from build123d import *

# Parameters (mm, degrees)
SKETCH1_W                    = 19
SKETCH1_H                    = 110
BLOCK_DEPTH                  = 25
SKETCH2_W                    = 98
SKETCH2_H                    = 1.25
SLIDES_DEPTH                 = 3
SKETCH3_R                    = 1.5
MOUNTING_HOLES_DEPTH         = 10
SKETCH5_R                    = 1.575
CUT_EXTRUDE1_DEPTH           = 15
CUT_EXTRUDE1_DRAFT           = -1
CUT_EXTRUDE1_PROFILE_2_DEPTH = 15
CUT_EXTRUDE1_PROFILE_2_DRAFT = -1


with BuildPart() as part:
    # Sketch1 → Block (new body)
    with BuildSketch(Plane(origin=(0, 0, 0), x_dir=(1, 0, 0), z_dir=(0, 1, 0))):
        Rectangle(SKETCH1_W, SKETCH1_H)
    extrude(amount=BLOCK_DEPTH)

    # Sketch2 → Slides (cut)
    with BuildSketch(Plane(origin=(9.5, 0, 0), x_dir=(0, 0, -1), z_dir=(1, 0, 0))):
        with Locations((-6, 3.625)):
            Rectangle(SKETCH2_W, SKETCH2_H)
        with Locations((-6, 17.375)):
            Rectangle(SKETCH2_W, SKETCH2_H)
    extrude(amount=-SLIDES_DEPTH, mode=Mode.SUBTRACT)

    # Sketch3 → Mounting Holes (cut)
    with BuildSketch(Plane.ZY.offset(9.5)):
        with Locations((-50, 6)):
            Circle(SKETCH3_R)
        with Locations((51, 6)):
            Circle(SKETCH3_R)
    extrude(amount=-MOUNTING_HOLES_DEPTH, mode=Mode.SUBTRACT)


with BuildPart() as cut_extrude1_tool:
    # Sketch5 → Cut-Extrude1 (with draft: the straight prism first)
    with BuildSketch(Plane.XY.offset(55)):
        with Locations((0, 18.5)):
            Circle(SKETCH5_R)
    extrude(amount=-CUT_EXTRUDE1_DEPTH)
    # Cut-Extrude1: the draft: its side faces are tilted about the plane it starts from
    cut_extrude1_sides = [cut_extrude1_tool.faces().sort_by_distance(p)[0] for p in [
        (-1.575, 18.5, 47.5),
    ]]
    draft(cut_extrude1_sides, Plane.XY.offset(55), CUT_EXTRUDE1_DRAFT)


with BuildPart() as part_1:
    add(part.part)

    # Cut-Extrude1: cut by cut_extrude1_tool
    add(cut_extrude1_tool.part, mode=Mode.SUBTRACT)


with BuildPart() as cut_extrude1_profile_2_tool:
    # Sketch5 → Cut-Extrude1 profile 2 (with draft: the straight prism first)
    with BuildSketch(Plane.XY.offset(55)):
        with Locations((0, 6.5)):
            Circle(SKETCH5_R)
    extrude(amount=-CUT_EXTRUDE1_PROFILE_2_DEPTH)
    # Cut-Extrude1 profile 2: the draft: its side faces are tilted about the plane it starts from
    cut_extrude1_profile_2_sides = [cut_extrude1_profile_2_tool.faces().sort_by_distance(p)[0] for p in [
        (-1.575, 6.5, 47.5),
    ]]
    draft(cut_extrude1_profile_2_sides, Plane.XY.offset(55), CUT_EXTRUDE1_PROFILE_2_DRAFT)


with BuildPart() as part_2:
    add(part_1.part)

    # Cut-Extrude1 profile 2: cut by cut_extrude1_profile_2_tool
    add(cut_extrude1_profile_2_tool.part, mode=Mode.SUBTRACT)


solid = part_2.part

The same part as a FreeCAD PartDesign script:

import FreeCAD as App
import Part
import Sketcher

V = App.Vector
Q = App.Units.Quantity


def faces_at(feature, points):
    """Names of the faces that lie closest to the given points."""
    faces = feature.Shape.Faces
    near = lambda p: min(range(len(faces)), key=lambda i: faces[i].distToShape(Part.Vertex(*p))[0])
    return sorted({f"Face{near(p) + 1}" for p in points})


def add_polygon(sketch, points):
    """Adds a closed chain of lines whose ends are joined by coincident constraints."""
    first, n = sketch.GeometryCount, len(points)
    for a, b in zip(points, points[1:] + points[:1]):
        sketch.addGeometry(Part.LineSegment(App.Vector(*a, 0), App.Vector(*b, 0)), False)
    for i in range(n):
        sketch.addConstraint(Sketcher.Constraint("Coincident", first + i, 2, first + (i + 1) % n, 1))

doc = App.newDocument("Part")
body = doc.addObject("PartDesign::Body", "Body")

sketch1 = doc.addObject("Sketcher::SketchObject", "Sketch")
body.addObject(sketch1)
sketch1.AttachmentSupport = (doc.XZ_Plane, [""])
sketch1.MapMode = "FlatFace"
add_polygon(sketch1, [(-10, -55), (-10, 55), (10, 55), (10, -55)])
sketch1.addConstraint([
    Sketcher.Constraint("Vertical", 0),
    Sketcher.Constraint("Horizontal", 1),
    Sketcher.Constraint("Vertical", 2),
    Sketcher.Constraint("Horizontal", 3),
    Sketcher.Constraint("Symmetric", 0, 2, 2, 2, -1, 1),
    Sketcher.Constraint("DistanceX", 1, 1, 1, 2, Q("19 mm")),
    Sketcher.Constraint("DistanceY", 0, 1, 0, 2, Q("110 mm")),
])
pad1 = doc.addObject("PartDesign::Pad", "Pad")
body.addObject(pad1)
pad1.Profile = sketch1
pad1.Length = 25
pad1.Reversed = True

sketch2 = doc.addObject("Sketcher::SketchObject", "Sketch001")
body.addObject(sketch2)
sketch2.AttachmentSupport = (doc.YZ_Plane, [""])
sketch2.MapMode = "FlatFace"
sketch2.AttachmentOffset = App.Placement(V(0, 0, 9.5), App.Rotation())
add_polygon(sketch2, [(4.2, 55), (3, 55), (3, -43), (4.2, -43)])
add_polygon(sketch2, [(18, 55), (16.8, 55), (16.8, -43), (18, -43)])
sketch2.addConstraint([
    Sketcher.Constraint("Horizontal", 0),
    Sketcher.Constraint("Vertical", 1),
    Sketcher.Constraint("Horizontal", 2),
    Sketcher.Constraint("Vertical", 3),
    Sketcher.Constraint("Horizontal", 4),
    Sketcher.Constraint("Vertical", 5),
    Sketcher.Constraint("Horizontal", 6),
    Sketcher.Constraint("Vertical", 7),
    Sketcher.Constraint("Horizontal", 3, 2, 4, 2),
    Sketcher.Constraint("Horizontal", 2, 2, 5, 2),
    Sketcher.Constraint("Equal", 2, 4),
    Sketcher.Constraint("DistanceY", 1, 2, 1, 1, Q("98 mm")),
    Sketcher.Constraint("DistanceX", -1, 1, 0, 2, Q("3 mm")),
    Sketcher.Constraint("DistanceY", -1, 1, 0, 2, Q("55 mm")),
    Sketcher.Constraint("DistanceX", -1, 1, 6, 2, Q("18 mm")),
    Sketcher.Constraint("DistanceX", 0, 2, 0, 1, Q("1.25 mm")),
])
pocket1 = doc.addObject("PartDesign::Pocket", "Pocket")
body.addObject(pocket1)
pocket1.Profile = sketch2
pocket1.Length = 3

sketch3 = doc.addObject("Sketcher::SketchObject", "Sketch002")
body.addObject(sketch3)
sketch3.AttachmentSupport = (doc.YZ_Plane, [""])
sketch3.MapMode = "FlatFace"
sketch3.AttachmentOffset = App.Placement(V(0, 0, -9.5), App.Rotation())
sketch3.addGeometry([
    Part.Circle(V(6, -50, 0), V(0, 0, 1), 1.5),
    Part.Circle(V(6, 51, 0), V(0, 0, 1), 1.5),
], False)
sketch3.addConstraint([
    Sketcher.Constraint("Equal", 0, 1),
    Sketcher.Constraint("Vertical", 0, 3, 1, 3),
    Sketcher.Constraint("Diameter", 0, Q("3 mm")),
    Sketcher.Constraint("DistanceX", -1, 1, 0, 3, Q("6 mm")),
    Sketcher.Constraint("DistanceY", 0, 3, -1, 1, Q("50 mm")),
    Sketcher.Constraint("DistanceY", -1, 1, 1, 3, Q("51 mm")),
])
pocket2 = doc.addObject("PartDesign::Pocket", "Pocket001")
body.addObject(pocket2)
pocket2.Profile = sketch3
pocket2.Length = 10
pocket2.Reversed = True
body2 = doc.addObject("PartDesign::Body", "Body001")

sketch4 = doc.addObject("Sketcher::SketchObject", "Sketch003")
body2.addObject(sketch4)
sketch4.AttachmentSupport = (doc.getObject("XY_Plane001"), [""])
sketch4.MapMode = "FlatFace"
sketch4.AttachmentOffset = App.Placement(V(0, 0, 55), App.Rotation())
sketch4.addGeometry(Part.Circle(V(0, 18.5, 0), V(0, 0, 1), 1.6), False)
sketch4.addConstraint([
    Sketcher.Constraint("PointOnObject", 0, 3, -2),
    Sketcher.Constraint("Diameter", 0, Q("3.15 mm")),
    Sketcher.Constraint("DistanceY", -1, 1, 0, 3, Q("18.5 mm")),
])
pad2 = doc.addObject("PartDesign::Pad", "Pad001")
body2.addObject(pad2)
pad2.Profile = sketch4
pad2.Length = 15
pad2.Reversed = True
doc.recompute()

datumplane = doc.addObject("PartDesign::Plane", "DatumPlane")
body2.addObject(datumplane)
datumplane.AttachmentSupport = (doc.getObject("XY_Plane001"), [""])
datumplane.MapMode = "FlatFace"
datumplane.AttachmentOffset = App.Placement(V(0, 0, 55), App.Rotation())
draft = doc.addObject("PartDesign::Draft", "Draft")
body2.addObject(draft)
draft.Base = (pad2, faces_at(pad2, [(-1.575, 18.5, 47.5)]))
draft.NeutralPlane = (datumplane, [""])
draft.Angle = 1
draft.Reversed = True
doc.recompute()

boolean = doc.addObject("PartDesign::Boolean", "Boolean")
body.addObject(boolean)
boolean.Type = "Cut"
boolean.addObjects([body2])
body3 = doc.addObject("PartDesign::Body", "Body002")

sketch5 = doc.addObject("Sketcher::SketchObject", "Sketch004")
body3.addObject(sketch5)
sketch5.AttachmentSupport = (doc.getObject("XY_Plane002"), [""])
sketch5.MapMode = "FlatFace"
sketch5.AttachmentOffset = App.Placement(V(0, 0, 55), App.Rotation())
sketch5.addGeometry(Part.Circle(V(0, 6.5, 0), V(0, 0, 1), 1.6), False)
sketch5.addConstraint([
    Sketcher.Constraint("PointOnObject", 0, 3, -2),
    Sketcher.Constraint("Diameter", 0, Q("3.15 mm")),
    Sketcher.Constraint("DistanceY", -1, 1, 0, 3, Q("6.5 mm")),
])
pad3 = doc.addObject("PartDesign::Pad", "Pad002")
body3.addObject(pad3)
pad3.Profile = sketch5
pad3.Length = 15
pad3.Reversed = True
doc.recompute()

datumplane2 = doc.addObject("PartDesign::Plane", "DatumPlane001")
body3.addObject(datumplane2)
datumplane2.AttachmentSupport = (doc.getObject("XY_Plane002"), [""])
datumplane2.MapMode = "FlatFace"
datumplane2.AttachmentOffset = App.Placement(V(0, 0, 55), App.Rotation())
draft2 = doc.addObject("PartDesign::Draft", "Draft001")
body3.addObject(draft2)
draft2.Base = (pad3, faces_at(pad3, [(-1.575, 6.5, 47.5)]))
draft2.NeutralPlane = (datumplane2, [""])
draft2.Angle = 1
draft2.Reversed = True
doc.recompute()

boolean2 = doc.addObject("PartDesign::Boolean", "Boolean001")
body.addObject(boolean2)
boolean2.Type = "Cut"
boolean2.addObjects([body3])

doc.recompute()
